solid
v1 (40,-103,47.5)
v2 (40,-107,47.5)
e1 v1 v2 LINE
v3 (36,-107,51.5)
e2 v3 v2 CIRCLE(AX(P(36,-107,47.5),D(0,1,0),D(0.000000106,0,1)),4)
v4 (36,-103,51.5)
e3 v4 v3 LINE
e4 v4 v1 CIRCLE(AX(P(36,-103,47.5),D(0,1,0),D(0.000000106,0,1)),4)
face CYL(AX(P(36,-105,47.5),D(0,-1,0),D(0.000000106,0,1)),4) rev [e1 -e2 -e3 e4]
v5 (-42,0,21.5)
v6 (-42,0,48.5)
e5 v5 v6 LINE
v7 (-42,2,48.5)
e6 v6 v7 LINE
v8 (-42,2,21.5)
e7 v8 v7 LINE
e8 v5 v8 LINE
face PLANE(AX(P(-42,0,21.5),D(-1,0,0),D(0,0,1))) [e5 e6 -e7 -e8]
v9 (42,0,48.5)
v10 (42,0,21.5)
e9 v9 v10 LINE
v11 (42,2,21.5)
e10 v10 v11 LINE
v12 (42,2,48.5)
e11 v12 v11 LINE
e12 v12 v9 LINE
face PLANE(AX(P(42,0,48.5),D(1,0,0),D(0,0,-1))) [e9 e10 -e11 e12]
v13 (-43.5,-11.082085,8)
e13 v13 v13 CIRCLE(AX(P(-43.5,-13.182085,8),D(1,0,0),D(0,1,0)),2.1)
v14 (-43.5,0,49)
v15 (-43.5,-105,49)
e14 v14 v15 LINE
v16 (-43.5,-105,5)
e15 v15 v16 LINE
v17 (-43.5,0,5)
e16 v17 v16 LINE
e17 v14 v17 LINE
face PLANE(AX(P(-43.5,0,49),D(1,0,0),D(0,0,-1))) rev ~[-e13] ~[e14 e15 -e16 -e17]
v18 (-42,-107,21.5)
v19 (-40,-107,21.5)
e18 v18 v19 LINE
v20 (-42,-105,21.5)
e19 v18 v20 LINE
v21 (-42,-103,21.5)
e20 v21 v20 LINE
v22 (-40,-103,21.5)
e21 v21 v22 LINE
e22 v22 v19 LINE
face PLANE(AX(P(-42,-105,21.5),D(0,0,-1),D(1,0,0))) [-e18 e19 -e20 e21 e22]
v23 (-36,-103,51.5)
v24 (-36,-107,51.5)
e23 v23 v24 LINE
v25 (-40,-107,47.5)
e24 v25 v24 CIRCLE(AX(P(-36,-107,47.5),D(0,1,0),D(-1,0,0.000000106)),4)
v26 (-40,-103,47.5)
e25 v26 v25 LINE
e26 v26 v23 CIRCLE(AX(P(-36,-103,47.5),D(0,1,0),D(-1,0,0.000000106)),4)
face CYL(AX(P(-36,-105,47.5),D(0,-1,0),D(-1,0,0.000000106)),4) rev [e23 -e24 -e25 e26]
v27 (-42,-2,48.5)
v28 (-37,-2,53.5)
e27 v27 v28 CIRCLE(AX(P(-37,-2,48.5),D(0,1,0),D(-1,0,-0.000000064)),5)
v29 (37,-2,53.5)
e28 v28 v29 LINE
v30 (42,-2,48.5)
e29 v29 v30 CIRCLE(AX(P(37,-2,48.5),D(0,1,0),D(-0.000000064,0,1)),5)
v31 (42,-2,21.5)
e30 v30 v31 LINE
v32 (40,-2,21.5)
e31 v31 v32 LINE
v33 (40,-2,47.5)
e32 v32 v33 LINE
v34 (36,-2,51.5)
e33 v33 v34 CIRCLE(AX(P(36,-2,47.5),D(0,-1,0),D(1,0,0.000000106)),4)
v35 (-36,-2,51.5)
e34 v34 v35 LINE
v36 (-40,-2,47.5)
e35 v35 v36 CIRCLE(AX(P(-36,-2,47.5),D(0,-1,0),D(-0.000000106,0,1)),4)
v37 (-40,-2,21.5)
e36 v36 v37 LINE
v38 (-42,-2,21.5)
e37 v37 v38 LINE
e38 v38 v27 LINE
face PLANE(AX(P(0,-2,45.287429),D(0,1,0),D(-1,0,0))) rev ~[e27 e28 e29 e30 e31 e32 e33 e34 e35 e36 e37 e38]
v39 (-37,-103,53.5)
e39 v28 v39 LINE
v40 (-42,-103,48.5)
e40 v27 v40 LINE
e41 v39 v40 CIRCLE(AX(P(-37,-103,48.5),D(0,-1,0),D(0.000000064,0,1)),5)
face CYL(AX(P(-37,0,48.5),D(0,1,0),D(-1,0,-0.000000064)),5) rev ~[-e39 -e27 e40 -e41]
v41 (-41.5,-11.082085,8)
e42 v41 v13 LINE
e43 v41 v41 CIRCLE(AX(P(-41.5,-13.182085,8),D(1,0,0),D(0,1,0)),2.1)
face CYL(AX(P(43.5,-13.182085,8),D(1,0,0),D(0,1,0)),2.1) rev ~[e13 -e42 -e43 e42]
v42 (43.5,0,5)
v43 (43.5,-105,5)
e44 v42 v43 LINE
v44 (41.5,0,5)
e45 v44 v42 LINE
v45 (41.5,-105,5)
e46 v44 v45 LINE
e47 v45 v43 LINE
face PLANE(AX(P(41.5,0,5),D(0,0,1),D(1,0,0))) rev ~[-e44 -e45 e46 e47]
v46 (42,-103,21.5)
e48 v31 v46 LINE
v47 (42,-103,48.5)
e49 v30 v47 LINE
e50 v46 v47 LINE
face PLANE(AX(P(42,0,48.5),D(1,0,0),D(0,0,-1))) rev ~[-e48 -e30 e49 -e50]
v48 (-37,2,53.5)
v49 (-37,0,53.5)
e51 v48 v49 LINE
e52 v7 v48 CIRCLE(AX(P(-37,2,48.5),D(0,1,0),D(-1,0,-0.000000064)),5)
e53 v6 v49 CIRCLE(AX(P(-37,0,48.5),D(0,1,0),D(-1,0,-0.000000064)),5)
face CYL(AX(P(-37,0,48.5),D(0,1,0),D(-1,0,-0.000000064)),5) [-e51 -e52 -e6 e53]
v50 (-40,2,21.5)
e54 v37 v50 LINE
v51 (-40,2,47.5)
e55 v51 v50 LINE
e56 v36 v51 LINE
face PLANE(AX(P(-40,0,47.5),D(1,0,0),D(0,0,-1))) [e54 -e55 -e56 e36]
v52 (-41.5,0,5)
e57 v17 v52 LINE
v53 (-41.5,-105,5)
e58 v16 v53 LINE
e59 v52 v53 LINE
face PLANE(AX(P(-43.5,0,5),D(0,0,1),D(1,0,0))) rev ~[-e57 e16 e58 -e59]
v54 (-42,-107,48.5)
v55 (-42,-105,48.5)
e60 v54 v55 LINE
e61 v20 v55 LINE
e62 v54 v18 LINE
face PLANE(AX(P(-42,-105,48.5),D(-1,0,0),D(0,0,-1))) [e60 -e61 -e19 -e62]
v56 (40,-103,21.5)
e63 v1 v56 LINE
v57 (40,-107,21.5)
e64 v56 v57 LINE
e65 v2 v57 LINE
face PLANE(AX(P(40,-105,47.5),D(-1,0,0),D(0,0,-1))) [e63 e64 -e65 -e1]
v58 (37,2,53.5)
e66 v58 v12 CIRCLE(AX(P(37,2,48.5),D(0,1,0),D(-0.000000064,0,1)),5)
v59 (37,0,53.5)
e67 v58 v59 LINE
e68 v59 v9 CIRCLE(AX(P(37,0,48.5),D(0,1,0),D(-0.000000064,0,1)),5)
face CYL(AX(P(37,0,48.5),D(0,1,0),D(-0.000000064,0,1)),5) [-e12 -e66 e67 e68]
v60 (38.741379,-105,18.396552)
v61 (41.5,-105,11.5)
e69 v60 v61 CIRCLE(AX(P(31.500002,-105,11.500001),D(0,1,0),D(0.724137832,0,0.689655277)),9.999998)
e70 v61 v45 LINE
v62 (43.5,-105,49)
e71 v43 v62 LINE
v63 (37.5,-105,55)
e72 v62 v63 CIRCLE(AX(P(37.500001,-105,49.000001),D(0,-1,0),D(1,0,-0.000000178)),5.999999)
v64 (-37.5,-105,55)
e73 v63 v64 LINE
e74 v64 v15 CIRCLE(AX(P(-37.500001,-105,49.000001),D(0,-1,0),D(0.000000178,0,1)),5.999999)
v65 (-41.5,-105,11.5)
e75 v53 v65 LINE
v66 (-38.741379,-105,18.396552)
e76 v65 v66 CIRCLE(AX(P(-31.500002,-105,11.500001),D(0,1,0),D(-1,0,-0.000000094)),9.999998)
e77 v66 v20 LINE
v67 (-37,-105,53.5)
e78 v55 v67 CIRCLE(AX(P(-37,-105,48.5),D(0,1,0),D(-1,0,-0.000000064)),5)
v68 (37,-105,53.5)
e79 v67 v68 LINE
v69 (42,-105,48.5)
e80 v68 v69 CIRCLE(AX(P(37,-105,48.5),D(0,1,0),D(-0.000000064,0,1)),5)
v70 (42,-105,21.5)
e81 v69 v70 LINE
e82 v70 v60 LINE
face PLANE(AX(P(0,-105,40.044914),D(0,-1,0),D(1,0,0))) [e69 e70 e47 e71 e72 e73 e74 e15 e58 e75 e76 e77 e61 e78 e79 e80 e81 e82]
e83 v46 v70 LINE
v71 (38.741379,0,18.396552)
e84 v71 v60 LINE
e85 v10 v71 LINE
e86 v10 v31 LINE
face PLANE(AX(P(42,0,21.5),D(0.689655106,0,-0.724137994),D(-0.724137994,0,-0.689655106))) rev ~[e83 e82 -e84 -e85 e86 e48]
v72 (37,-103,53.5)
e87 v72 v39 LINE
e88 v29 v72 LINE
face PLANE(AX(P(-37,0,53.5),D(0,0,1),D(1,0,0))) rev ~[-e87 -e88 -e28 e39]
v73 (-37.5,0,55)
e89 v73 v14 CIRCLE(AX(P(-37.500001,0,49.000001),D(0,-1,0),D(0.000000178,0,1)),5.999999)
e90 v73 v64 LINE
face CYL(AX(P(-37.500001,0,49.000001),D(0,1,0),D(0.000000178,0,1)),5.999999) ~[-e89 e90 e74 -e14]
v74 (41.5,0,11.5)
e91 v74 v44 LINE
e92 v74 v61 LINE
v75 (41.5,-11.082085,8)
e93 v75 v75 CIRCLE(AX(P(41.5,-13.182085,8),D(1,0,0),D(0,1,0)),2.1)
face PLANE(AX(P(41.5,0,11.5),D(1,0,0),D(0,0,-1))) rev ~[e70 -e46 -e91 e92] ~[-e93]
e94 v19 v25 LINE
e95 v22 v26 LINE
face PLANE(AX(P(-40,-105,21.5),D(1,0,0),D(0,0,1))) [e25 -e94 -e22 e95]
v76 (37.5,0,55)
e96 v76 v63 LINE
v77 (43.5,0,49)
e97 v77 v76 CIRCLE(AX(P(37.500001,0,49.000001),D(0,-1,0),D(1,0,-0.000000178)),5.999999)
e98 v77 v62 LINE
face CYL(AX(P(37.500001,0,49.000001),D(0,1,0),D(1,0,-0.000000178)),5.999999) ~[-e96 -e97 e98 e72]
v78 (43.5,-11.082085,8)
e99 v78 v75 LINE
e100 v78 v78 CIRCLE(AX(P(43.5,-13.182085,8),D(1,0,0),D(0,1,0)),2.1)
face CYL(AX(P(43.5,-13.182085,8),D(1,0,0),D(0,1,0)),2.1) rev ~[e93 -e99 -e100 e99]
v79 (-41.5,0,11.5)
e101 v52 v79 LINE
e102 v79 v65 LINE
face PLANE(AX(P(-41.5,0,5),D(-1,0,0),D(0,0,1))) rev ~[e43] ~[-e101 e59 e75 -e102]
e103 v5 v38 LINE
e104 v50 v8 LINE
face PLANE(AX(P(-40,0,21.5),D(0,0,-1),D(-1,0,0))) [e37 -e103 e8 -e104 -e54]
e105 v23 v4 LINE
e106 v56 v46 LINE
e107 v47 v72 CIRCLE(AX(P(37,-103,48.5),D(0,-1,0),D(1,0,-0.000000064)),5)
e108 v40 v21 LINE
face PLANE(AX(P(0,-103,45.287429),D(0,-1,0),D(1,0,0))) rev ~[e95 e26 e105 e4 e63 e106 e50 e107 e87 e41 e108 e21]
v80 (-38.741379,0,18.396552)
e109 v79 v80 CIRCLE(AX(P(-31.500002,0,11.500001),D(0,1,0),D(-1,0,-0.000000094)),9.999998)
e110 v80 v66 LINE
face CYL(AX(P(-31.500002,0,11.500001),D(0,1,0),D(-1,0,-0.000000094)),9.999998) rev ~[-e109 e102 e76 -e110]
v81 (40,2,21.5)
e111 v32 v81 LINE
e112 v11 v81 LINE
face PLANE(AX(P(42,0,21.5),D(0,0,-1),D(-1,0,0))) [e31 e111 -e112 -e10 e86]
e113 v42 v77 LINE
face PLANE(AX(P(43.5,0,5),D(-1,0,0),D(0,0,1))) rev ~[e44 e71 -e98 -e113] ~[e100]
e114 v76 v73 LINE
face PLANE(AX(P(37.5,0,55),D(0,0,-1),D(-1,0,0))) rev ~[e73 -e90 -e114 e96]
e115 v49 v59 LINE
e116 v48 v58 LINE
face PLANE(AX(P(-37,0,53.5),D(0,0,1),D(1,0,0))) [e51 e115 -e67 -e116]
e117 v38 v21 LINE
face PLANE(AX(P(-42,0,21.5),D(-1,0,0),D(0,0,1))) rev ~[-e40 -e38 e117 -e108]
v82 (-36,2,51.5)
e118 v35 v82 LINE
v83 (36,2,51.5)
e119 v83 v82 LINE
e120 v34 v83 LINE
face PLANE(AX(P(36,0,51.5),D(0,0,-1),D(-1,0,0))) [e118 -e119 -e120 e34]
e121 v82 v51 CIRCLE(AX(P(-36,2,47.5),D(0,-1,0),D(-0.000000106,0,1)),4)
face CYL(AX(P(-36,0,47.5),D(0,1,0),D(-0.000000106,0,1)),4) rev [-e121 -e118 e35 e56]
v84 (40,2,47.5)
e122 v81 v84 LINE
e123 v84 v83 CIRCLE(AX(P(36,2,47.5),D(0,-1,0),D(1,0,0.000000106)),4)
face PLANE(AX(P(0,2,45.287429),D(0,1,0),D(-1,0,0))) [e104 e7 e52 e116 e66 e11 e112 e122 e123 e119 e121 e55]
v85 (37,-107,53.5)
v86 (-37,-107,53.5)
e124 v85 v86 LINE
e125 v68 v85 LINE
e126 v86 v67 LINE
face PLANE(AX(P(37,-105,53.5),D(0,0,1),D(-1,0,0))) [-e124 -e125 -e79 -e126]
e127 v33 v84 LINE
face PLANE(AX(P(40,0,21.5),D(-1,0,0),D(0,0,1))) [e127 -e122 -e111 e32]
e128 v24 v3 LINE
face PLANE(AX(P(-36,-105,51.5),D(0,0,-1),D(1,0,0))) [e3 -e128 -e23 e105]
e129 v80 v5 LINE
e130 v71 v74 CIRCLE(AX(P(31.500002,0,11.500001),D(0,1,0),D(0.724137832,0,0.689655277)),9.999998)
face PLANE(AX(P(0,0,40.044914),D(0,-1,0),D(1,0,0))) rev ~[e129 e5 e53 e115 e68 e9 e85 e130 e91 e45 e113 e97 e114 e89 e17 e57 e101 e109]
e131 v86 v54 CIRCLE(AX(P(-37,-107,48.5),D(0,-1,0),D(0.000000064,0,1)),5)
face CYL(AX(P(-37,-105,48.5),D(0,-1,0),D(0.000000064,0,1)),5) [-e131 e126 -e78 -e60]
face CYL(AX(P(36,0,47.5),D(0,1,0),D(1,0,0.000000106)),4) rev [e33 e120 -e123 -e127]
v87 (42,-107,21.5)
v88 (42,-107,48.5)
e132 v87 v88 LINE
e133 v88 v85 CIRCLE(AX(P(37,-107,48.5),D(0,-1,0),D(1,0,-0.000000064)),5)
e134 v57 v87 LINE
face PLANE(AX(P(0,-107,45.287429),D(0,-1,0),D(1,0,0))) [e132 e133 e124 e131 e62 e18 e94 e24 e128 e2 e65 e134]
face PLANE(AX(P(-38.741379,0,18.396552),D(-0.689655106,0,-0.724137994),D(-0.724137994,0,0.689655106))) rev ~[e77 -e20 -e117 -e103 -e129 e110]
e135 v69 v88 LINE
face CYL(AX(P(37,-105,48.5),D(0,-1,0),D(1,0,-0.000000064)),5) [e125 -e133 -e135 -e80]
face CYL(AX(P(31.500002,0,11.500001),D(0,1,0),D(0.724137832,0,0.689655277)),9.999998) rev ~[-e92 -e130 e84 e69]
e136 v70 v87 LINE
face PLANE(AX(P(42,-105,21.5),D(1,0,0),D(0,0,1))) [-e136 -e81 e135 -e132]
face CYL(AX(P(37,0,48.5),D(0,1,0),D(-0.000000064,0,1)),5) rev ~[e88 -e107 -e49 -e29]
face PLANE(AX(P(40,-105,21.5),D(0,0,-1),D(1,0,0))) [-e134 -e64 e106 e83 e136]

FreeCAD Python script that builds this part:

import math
import FreeCAD as App
import Part
import Sketcher

V = App.Vector

doc = App.newDocument("Part")
body = doc.addObject("PartDesign::Body", "Body")

# Sketch on XZ plane
sketch1 = body.newObject("Sketcher::SketchObject", "Sketch")
sketch1.AttachmentSupport = (doc.getObject("XZ_Plane"), [""])
sketch1.MapMode = "FlatFace"
sketch1.addGeometry([
    Part.ArcOfCircle(Part.Circle(V(-31.5, 11.5, 0), V(0, 0, 1), 10), math.radians(136), math.radians(180)),  # 0
    Part.LineSegment(V(-38.7, 18.4, 0), V(-42, 21.5, 0)),  # 1
    Part.LineSegment(V(-42, 21.5, 0), V(-42, 48.5, 0)),  # 2
    Part.ArcOfCircle(Part.Circle(V(-37, 48.5, 0), V(0, 0, 1), 5), math.radians(90), math.radians(180)),  # 3
    Part.LineSegment(V(-37, 53.5, 0), V(37, 53.5, 0)),  # 4
    Part.ArcOfCircle(Part.Circle(V(37, 48.5, 0), V(0, 0, 1), 5), math.radians(0), math.radians(90)),  # 5
    Part.LineSegment(V(42, 48.5, 0), V(42, 21.5, 0)),  # 6
    Part.LineSegment(V(42, 21.5, 0), V(38.7, 18.4, 0)),  # 7
    Part.ArcOfCircle(Part.Circle(V(31.5, 11.5, 0), V(0, 0, 1), 10), math.radians(0), math.radians(44)),  # 8
    Part.LineSegment(V(41.5, 11.5, 0), V(41.5, 5, 0)),  # 9
    Part.LineSegment(V(41.5, 5, 0), V(43.5, 5, 0)),  # 10
    Part.LineSegment(V(43.5, 5, 0), V(43.5, 49, 0)),  # 11
    Part.ArcOfCircle(Part.Circle(V(37.5, 49, 0), V(0, 0, 1), 6), math.radians(0), math.radians(90)),  # 12
    Part.LineSegment(V(37.5, 55, 0), V(-37.5, 55, 0)),  # 13
    Part.ArcOfCircle(Part.Circle(V(-37.5, 49, 0), V(0, 0, 1), 6), math.radians(90), math.radians(180)),  # 14
    Part.LineSegment(V(-43.5, 49, 0), V(-43.5, 5, 0)),  # 15
    Part.LineSegment(V(-43.5, 5, 0), V(-41.5, 5, 0)),  # 16
    Part.LineSegment(V(-41.5, 5, 0), V(-41.5, 11.5, 0)),  # 17
], False)
sketch1.addConstraint([
    Sketcher.Constraint("Coincident", 0, 1, 1, 1),
    Sketcher.Constraint("Coincident", 1, 2, 2, 1),
    Sketcher.Constraint("Tangent", 2, 2, 3, 2),
    Sketcher.Constraint("Tangent", 3, 1, 4, 1),
    Sketcher.Constraint("Tangent", 4, 2, 5, 2),
    Sketcher.Constraint("Tangent", 5, 1, 6, 1),
    Sketcher.Constraint("Coincident", 6, 2, 7, 1),
    Sketcher.Constraint("Coincident", 7, 2, 8, 2),
    Sketcher.Constraint("Tangent", 8, 1, 9, 1),
    Sketcher.Constraint("Coincident", 9, 2, 10, 1),
    Sketcher.Constraint("Coincident", 10, 2, 11, 1),
    Sketcher.Constraint("Tangent", 11, 2, 12, 1),
    Sketcher.Constraint("Tangent", 12, 2, 13, 1),
    Sketcher.Constraint("Tangent", 13, 2, 14, 1),
    Sketcher.Constraint("Tangent", 14, 2, 15, 1),
    Sketcher.Constraint("Coincident", 15, 2, 16, 1),
    Sketcher.Constraint("Coincident", 16, 2, 17, 1),
    Sketcher.Constraint("Tangent", 17, 2, 0, 2),
    Sketcher.Constraint("Vertical", 2),
    Sketcher.Constraint("Horizontal", 4),
    Sketcher.Constraint("Vertical", 6),
    Sketcher.Constraint("Vertical", 9),
    Sketcher.Constraint("Horizontal", 10),
    Sketcher.Constraint("Vertical", 11),
    Sketcher.Constraint("Horizontal", 13),
    Sketcher.Constraint("Vertical", 15),
    Sketcher.Constraint("Horizontal", 16),
    Sketcher.Constraint("Vertical", 17),
    Sketcher.Constraint("Equal", 3, 5),
    Sketcher.Constraint("Equal", 0, 8),
    Sketcher.Constraint("Equal", 12, 14),
    Sketcher.Constraint("Symmetric", 0, 3, 8, 3, -2),
    Sketcher.Constraint("Symmetric", 1, 2, 6, 2, -2),
    Sketcher.Constraint("Symmetric", 10, 2, 15, 2, -2),
    Sketcher.Constraint("Horizontal", 0, 1, 7, 2),
    Sketcher.Constraint("Radius", 3, 5.0),
    Sketcher.Constraint("Radius", 12, 5.999999),
    Sketcher.Constraint("DistanceX", 4, 1, 4, 2, 74.0),
    Sketcher.Constraint("DistanceX", 10, 1, 10, 2, 2.0),
    Sketcher.Constraint("DistanceX", 13, 2, 13, 1, 75.0),
    Sketcher.Constraint("DistanceY", 2, 1, 2, 2, 27.0),
    Sketcher.Constraint("DistanceY", 11, 1, 11, 2, 44.0),
    Sketcher.Constraint("DistanceY", 9, 2, 9, 1, 6.5),
    Sketcher.Constraint("DistanceY", -1, 1, 12, 3, 49.000001),
    Sketcher.Constraint("DistanceY", 0, 3, 3, 3, 36.999999),
    Sketcher.Constraint("DistanceX", 8, 3, 12, 3, 5.999999),
    Sketcher.Constraint("DistanceX", 0, 1, -1, 1, 38.741379),
])
pad1 = body.newObject("PartDesign::Pad", "Pad")
pad1.Profile = sketch1
pad1.Length = 105

# Sketch on YZ plane
sketch2 = body.newObject("Sketcher::SketchObject", "Sketch001")
sketch2.AttachmentSupport = (doc.getObject("YZ_Plane"), [""])
sketch2.MapMode = "FlatFace"
sketch2.AttachmentOffset = App.Placement(V(0, 0, 43.5), App.Rotation())
sketch2.addGeometry(Part.Circle(V(-13.2, 8, 0), V(0, 0, 1), 2.1), False)
sketch2.addConstraint([
    Sketcher.Constraint("Diameter", 0, 4.2),
    Sketcher.Constraint("DistanceY", -1, 1, 0, 3, 8.0),
    Sketcher.Constraint("DistanceX", 0, 3, -1, 1, 13.182085),
])
pocket1 = body.newObject("PartDesign::Pocket", "Pocket")
pocket1.Profile = sketch2
pocket1.Type = "ThroughAll"

# Sketch on XZ plane
sketch3 = body.newObject("Sketcher::SketchObject", "Sketch002")
sketch3.AttachmentSupport = (doc.getObject("XZ_Plane"), [""])
sketch3.MapMode = "FlatFace"
sketch3.AttachmentOffset = App.Placement(V(0, 0, 105), App.Rotation())
sketch3.addGeometry([
    Part.LineSegment(V(-42, 21.5, 0), V(-40, 21.5, 0)),  # 0
    Part.LineSegment(V(-40, 21.5, 0), V(-40, 47.5, 0)),  # 1
    Part.ArcOfCircle(Part.Circle(V(-36, 47.5, 0), V(0, 0, 1), 4), math.radians(90), math.radians(180)),  # 2
    Part.LineSegment(V(-36, 51.5, 0), V(36, 51.5, 0)),  # 3
    Part.ArcOfCircle(Part.Circle(V(36, 47.5, 0), V(0, 0, 1), 4), math.radians(0), math.radians(90)),  # 4
    Part.LineSegment(V(40, 47.5, 0), V(40, 21.5, 0)),  # 5
    Part.LineSegment(V(40, 21.5, 0), V(42, 21.5, 0)),  # 6
    Part.LineSegment(V(42, 21.5, 0), V(42, 48.5, 0)),  # 7
    Part.ArcOfCircle(Part.Circle(V(37, 48.5, 0), V(0, 0, 1), 5), math.radians(0), math.radians(90)),  # 8
    Part.LineSegment(V(37, 53.5, 0), V(-37, 53.5, 0)),  # 9
    Part.ArcOfCircle(Part.Circle(V(-37, 48.5, 0), V(0, 0, 1), 5), math.radians(90), math.radians(180)),  # 10
    Part.LineSegment(V(-42, 48.5, 0), V(-42, 21.5, 0)),  # 11
], False)
sketch3.addConstraint([
    Sketcher.Constraint("Coincident", 0, 2, 1, 1),
    Sketcher.Constraint("Tangent", 1, 2, 2, 2),
    Sketcher.Constraint("Tangent", 2, 1, 3, 1),
    Sketcher.Constraint("Tangent", 3, 2, 4, 2),
    Sketcher.Constraint("Tangent", 4, 1, 5, 1),
    Sketcher.Constraint("Coincident", 5, 2, 6, 1),
    Sketcher.Constraint("Coincident", 6, 2, 7, 1),
    Sketcher.Constraint("Tangent", 7, 2, 8, 1),
    Sketcher.Constraint("Tangent", 8, 2, 9, 1),
    Sketcher.Constraint("Tangent", 9, 2, 10, 1),
    Sketcher.Constraint("Tangent", 10, 2, 11, 1),
    Sketcher.Constraint("Coincident", 11, 2, 0, 1),
    Sketcher.Constraint("Horizontal", 0),
    Sketcher.Constraint("Vertical", 1),
    Sketcher.Constraint("Horizontal", 3),
    Sketcher.Constraint("Vertical", 5),
    Sketcher.Constraint("Horizontal", 6),
    Sketcher.Constraint("Vertical", 7),
    Sketcher.Constraint("Horizontal", 9),
    Sketcher.Constraint("Vertical", 11),
    Sketcher.Constraint("Equal", 2, 4),
    Sketcher.Constraint("Equal", 8, 10),
    Sketcher.Constraint("Symmetric", 0, 2, 5, 2, -2),
    Sketcher.Constraint("Equal", 0, 6),
    Sketcher.Constraint("Radius", 2, 4.0),
    Sketcher.Constraint("Radius", 8, 5.0),
    Sketcher.Constraint("DistanceX", 0, 1, 0, 2, 2.0),
    Sketcher.Constraint("DistanceX", 3, 1, 3, 2, 72.0),
    Sketcher.Constraint("DistanceY", 1, 1, 1, 2, 26.0),
    Sketcher.Constraint("DistanceY", 7, 1, 7, 2, 27.0),
    Sketcher.Constraint("DistanceY", -1, 1, 2, 3, 47.5),
])
pad2 = body.newObject("PartDesign::Pad", "Pad001")
pad2.Profile = sketch3
pad2.Length = 4
pad2.Midplane = True

# Sketch on XZ plane
sketch4 = body.newObject("Sketcher::SketchObject", "Sketch003")
sketch4.AttachmentSupport = (doc.getObject("XZ_Plane"), [""])
sketch4.MapMode = "FlatFace"
sketch4.addGeometry([
    Part.LineSegment(V(42, 48.5, 0), V(42, 21.5, 0)),  # 0
    Part.LineSegment(V(42, 21.5, 0), V(40, 21.5, 0)),  # 1
    Part.LineSegment(V(40, 21.5, 0), V(40, 47.5, 0)),  # 2
    Part.ArcOfCircle(Part.Circle(V(36, 47.5, 0), V(0, 0, 1), 4), math.radians(0), math.radians(90)),  # 3
    Part.LineSegment(V(36, 51.5, 0), V(-36, 51.5, 0)),  # 4
    Part.ArcOfCircle(Part.Circle(V(-36, 47.5, 0), V(0, 0, 1), 4), math.radians(90), math.radians(180)),  # 5
    Part.LineSegment(V(-40, 47.5, 0), V(-40, 21.5, 0)),  # 6
    Part.LineSegment(V(-40, 21.5, 0), V(-42, 21.5, 0)),  # 7
    Part.LineSegment(V(-42, 21.5, 0), V(-42, 48.5, 0)),  # 8
    Part.ArcOfCircle(Part.Circle(V(-37, 48.5, 0), V(0, 0, 1), 5), math.radians(90), math.radians(180)),  # 9
    Part.LineSegment(V(-37, 53.5, 0), V(37, 53.5, 0)),  # 10
    Part.ArcOfCircle(Part.Circle(V(37, 48.5, 0), V(0, 0, 1), 5), math.radians(0), math.radians(90)),  # 11
], False)
sketch4.addConstraint([
    Sketcher.Constraint("Coincident", 0, 2, 1, 1),
    Sketcher.Constraint("Coincident", 1, 2, 2, 1),
    Sketcher.Constraint("Tangent", 2, 2, 3, 1),
    Sketcher.Constraint("Tangent", 3, 2, 4, 1),
    Sketcher.Constraint("Tangent", 4, 2, 5, 1),
    Sketcher.Constraint("Tangent", 5, 2, 6, 1),
    Sketcher.Constraint("Coincident", 6, 2, 7, 1),
    Sketcher.Constraint("Coincident", 7, 2, 8, 1),
    Sketcher.Constraint("Tangent", 8, 2, 9, 2),
    Sketcher.Constraint("Tangent", 9, 1, 10, 1),
    Sketcher.Constraint("Tangent", 10, 2, 11, 2),
    Sketcher.Constraint("Tangent", 11, 1, 0, 1),
    Sketcher.Constraint("Vertical", 0),
    Sketcher.Constraint("Horizontal", 1),
    Sketcher.Constraint("Vertical", 2),
    Sketcher.Constraint("Horizontal", 4),
    Sketcher.Constraint("Vertical", 6),
    Sketcher.Constraint("Horizontal", 7),
    Sketcher.Constraint("Vertical", 8),
    Sketcher.Constraint("Horizontal", 10),
    Sketcher.Constraint("Equal", 3, 5),
    Sketcher.Constraint("Equal", 9, 11),
    Sketcher.Constraint("Symmetric", 1, 2, 6, 2, -2),
    Sketcher.Constraint("Equal", 1, 7),
    Sketcher.Constraint("Radius", 3, 4.0),
    Sketcher.Constraint("Radius", 9, 5.0),
    Sketcher.Constraint("DistanceX", 1, 2, 1, 1, 2.0),
    Sketcher.Constraint("DistanceX", 4, 2, 4, 1, 72.0),
    Sketcher.Constraint("DistanceY", 0, 2, 0, 1, 27.0),
    Sketcher.Constraint("DistanceY", 2, 1, 2, 2, 26.0),
    Sketcher.Constraint("DistanceY", -1, 1, 3, 3, 47.5),
])
pad3 = body.newObject("PartDesign::Pad", "Pad002")
pad3.Profile = sketch4
pad3.Length = 4
pad3.Midplane = True

doc.recompute()
